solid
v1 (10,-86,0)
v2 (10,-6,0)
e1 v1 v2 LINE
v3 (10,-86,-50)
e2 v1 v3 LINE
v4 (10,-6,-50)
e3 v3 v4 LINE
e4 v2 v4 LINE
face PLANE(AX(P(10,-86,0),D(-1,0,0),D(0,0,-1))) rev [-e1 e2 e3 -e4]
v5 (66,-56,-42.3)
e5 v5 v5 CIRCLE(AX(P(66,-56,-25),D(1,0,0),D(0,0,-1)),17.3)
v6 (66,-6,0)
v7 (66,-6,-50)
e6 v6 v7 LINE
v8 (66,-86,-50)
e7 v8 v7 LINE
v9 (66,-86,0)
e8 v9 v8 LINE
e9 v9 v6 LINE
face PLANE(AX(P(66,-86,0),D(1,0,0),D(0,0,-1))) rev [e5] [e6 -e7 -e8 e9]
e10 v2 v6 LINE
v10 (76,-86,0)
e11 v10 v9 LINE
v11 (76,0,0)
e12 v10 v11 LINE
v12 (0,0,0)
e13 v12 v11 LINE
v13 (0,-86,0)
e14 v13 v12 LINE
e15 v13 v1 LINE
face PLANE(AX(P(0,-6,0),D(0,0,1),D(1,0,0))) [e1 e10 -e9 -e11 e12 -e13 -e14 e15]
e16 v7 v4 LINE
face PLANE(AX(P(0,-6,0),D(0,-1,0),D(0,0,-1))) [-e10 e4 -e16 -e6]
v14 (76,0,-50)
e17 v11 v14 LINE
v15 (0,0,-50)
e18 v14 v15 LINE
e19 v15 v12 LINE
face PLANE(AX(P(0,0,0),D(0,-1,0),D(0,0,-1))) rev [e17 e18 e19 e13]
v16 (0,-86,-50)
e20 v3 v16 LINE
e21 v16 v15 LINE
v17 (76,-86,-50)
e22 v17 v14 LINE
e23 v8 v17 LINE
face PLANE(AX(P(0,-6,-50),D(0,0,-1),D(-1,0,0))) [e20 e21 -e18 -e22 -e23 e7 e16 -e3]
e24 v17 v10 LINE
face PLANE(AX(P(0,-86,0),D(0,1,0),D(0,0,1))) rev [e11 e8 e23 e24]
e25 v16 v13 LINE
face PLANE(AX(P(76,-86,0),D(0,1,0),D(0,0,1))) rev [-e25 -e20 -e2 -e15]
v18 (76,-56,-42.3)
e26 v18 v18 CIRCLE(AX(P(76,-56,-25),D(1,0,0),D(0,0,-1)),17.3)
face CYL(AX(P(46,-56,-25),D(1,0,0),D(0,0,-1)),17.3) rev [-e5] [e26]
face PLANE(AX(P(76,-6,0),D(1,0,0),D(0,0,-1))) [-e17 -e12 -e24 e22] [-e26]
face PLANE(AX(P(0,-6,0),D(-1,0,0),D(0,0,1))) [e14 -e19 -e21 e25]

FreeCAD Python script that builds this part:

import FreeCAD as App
import Part
import Sketcher
Q = App.Units.Quantity

doc = App.newDocument("Part")
body = doc.addObject("PartDesign::Body", "Body")

# Sketch on XZ plane
sketch1 = body.newObject("Sketcher::SketchObject", "Sketch")
sketch1.AttachmentSupport = (doc.getObject("XZ_Plane"), [""])
sketch1.MapMode = "FlatFace"
sketch1.addGeometry([
    Part.LineSegment(App.Vector(0, -50, 0), App.Vector(0, 0, 0)),
    Part.LineSegment(App.Vector(0, 0, 0), App.Vector(76, 0, 0)),
    Part.LineSegment(App.Vector(76, 0, 0), App.Vector(76, -50, 0)),
    Part.LineSegment(App.Vector(76, -50, 0), App.Vector(0, -50, 0)),
], False)
sketch1.addConstraint([
    Sketcher.Constraint("Coincident", 0, 2, 1, 1),
    Sketcher.Constraint("Coincident", 1, 2, 2, 1),
    Sketcher.Constraint("Coincident", 2, 2, 3, 1),
    Sketcher.Constraint("Coincident", 3, 2, 0, 1),
    Sketcher.Constraint("Vertical", 0),
    Sketcher.Constraint("Horizontal", 1),
    Sketcher.Constraint("Vertical", 2),
    Sketcher.Constraint("Horizontal", 3),
    Sketcher.Constraint("Coincident", 0, 2, -1, 1),
    Sketcher.Constraint("DistanceX", 1, 1, 1, 2, Q("76 mm")),
    Sketcher.Constraint("DistanceY", 0, 1, 0, 2, Q("50 mm")),
])
pad1 = body.newObject("PartDesign::Pad", "Pad")
pad1.Profile = sketch1
pad1.Length = 6

# Sketch on XZ plane
sketch2 = body.newObject("Sketcher::SketchObject", "Sketch001")
sketch2.AttachmentSupport = (doc.getObject("XZ_Plane"), [""])
sketch2.MapMode = "FlatFace"
sketch2.AttachmentOffset = App.Placement(App.Vector(0, 0, 6), App.Rotation())
sketch2.addGeometry([
    Part.LineSegment(App.Vector(66, 0, 0), App.Vector(66, -50, 0)),
    Part.LineSegment(App.Vector(66, -50, 0), App.Vector(76, -50, 0)),
    Part.LineSegment(App.Vector(76, -50, 0), App.Vector(76, 0, 0)),
    Part.LineSegment(App.Vector(76, 0, 0), App.Vector(66, 0, 0)),
], False)
sketch2.addConstraint([
    Sketcher.Constraint("Coincident", 0, 2, 1, 1),
    Sketcher.Constraint("Coincident", 1, 2, 2, 1),
    Sketcher.Constraint("Coincident", 2, 2, 3, 1),
    Sketcher.Constraint("Coincident", 3, 2, 0, 1),
    Sketcher.Constraint("Vertical", 0),
    Sketcher.Constraint("Horizontal", 1),
    Sketcher.Constraint("Vertical", 2),
    Sketcher.Constraint("Horizontal", 3),
    Sketcher.Constraint("PointOnObject", 2, 2, -1),
    Sketcher.Constraint("DistanceX", 1, 1, 1, 2, Q("10 mm")),
    Sketcher.Constraint("DistanceY", 0, 2, 0, 1, Q("50 mm")),
    Sketcher.Constraint("DistanceX", -1, 1, 0, 2, Q("66 mm")),
])
pad2 = body.newObject("PartDesign::Pad", "Pad001")
pad2.Profile = sketch2
pad2.Length = 80
body2 = doc.addObject("PartDesign::Body", "Body001")
doc.recompute()

body2.BaseFeature = body
doc.recompute()

mirroring = doc.addObject("Part::Mirroring", "Mirroring")
mirroring.Source = body
mirroring.Base = App.Vector(38, 0, 0)
mirroring.Normal = App.Vector(1, 0, 0)
body3 = doc.addObject("PartDesign::Body", "Body002")
body3.BaseFeature = mirroring
boolean = body2.newObject("PartDesign::Boolean", "Boolean")
boolean.Type = "Fuse"
boolean.addObjects([body3])
doc.recompute()

# Sketch on YZ plane
sketch3 = body2.newObject("Sketcher::SketchObject", "Sketch002")
sketch3.AttachmentSupport = (doc.getObject("YZ_Plane001"), [""])
sketch3.MapMode = "FlatFace"
sketch3.AttachmentOffset = App.Placement(App.Vector(0, 0, 76), App.Rotation())
sketch3.addGeometry(Part.Circle(App.Vector(-56, -25, 0), App.Vector(0, 0, 1), 17), False)
sketch3.addConstraint([
    Sketcher.Constraint("Diameter", 0, Q("34.6 mm")),
    Sketcher.Constraint("DistanceX", 0, 3, -1, 1, Q("56 mm")),
    Sketcher.Constraint("DistanceY", 0, 3, -1, 1, Q("25 mm")),
])
pocket1 = body2.newObject("PartDesign::Pocket", "Pocket")
pocket1.Profile = sketch3
pocket1.Length = 30
mirroring.Visibility = False

doc.recompute()
